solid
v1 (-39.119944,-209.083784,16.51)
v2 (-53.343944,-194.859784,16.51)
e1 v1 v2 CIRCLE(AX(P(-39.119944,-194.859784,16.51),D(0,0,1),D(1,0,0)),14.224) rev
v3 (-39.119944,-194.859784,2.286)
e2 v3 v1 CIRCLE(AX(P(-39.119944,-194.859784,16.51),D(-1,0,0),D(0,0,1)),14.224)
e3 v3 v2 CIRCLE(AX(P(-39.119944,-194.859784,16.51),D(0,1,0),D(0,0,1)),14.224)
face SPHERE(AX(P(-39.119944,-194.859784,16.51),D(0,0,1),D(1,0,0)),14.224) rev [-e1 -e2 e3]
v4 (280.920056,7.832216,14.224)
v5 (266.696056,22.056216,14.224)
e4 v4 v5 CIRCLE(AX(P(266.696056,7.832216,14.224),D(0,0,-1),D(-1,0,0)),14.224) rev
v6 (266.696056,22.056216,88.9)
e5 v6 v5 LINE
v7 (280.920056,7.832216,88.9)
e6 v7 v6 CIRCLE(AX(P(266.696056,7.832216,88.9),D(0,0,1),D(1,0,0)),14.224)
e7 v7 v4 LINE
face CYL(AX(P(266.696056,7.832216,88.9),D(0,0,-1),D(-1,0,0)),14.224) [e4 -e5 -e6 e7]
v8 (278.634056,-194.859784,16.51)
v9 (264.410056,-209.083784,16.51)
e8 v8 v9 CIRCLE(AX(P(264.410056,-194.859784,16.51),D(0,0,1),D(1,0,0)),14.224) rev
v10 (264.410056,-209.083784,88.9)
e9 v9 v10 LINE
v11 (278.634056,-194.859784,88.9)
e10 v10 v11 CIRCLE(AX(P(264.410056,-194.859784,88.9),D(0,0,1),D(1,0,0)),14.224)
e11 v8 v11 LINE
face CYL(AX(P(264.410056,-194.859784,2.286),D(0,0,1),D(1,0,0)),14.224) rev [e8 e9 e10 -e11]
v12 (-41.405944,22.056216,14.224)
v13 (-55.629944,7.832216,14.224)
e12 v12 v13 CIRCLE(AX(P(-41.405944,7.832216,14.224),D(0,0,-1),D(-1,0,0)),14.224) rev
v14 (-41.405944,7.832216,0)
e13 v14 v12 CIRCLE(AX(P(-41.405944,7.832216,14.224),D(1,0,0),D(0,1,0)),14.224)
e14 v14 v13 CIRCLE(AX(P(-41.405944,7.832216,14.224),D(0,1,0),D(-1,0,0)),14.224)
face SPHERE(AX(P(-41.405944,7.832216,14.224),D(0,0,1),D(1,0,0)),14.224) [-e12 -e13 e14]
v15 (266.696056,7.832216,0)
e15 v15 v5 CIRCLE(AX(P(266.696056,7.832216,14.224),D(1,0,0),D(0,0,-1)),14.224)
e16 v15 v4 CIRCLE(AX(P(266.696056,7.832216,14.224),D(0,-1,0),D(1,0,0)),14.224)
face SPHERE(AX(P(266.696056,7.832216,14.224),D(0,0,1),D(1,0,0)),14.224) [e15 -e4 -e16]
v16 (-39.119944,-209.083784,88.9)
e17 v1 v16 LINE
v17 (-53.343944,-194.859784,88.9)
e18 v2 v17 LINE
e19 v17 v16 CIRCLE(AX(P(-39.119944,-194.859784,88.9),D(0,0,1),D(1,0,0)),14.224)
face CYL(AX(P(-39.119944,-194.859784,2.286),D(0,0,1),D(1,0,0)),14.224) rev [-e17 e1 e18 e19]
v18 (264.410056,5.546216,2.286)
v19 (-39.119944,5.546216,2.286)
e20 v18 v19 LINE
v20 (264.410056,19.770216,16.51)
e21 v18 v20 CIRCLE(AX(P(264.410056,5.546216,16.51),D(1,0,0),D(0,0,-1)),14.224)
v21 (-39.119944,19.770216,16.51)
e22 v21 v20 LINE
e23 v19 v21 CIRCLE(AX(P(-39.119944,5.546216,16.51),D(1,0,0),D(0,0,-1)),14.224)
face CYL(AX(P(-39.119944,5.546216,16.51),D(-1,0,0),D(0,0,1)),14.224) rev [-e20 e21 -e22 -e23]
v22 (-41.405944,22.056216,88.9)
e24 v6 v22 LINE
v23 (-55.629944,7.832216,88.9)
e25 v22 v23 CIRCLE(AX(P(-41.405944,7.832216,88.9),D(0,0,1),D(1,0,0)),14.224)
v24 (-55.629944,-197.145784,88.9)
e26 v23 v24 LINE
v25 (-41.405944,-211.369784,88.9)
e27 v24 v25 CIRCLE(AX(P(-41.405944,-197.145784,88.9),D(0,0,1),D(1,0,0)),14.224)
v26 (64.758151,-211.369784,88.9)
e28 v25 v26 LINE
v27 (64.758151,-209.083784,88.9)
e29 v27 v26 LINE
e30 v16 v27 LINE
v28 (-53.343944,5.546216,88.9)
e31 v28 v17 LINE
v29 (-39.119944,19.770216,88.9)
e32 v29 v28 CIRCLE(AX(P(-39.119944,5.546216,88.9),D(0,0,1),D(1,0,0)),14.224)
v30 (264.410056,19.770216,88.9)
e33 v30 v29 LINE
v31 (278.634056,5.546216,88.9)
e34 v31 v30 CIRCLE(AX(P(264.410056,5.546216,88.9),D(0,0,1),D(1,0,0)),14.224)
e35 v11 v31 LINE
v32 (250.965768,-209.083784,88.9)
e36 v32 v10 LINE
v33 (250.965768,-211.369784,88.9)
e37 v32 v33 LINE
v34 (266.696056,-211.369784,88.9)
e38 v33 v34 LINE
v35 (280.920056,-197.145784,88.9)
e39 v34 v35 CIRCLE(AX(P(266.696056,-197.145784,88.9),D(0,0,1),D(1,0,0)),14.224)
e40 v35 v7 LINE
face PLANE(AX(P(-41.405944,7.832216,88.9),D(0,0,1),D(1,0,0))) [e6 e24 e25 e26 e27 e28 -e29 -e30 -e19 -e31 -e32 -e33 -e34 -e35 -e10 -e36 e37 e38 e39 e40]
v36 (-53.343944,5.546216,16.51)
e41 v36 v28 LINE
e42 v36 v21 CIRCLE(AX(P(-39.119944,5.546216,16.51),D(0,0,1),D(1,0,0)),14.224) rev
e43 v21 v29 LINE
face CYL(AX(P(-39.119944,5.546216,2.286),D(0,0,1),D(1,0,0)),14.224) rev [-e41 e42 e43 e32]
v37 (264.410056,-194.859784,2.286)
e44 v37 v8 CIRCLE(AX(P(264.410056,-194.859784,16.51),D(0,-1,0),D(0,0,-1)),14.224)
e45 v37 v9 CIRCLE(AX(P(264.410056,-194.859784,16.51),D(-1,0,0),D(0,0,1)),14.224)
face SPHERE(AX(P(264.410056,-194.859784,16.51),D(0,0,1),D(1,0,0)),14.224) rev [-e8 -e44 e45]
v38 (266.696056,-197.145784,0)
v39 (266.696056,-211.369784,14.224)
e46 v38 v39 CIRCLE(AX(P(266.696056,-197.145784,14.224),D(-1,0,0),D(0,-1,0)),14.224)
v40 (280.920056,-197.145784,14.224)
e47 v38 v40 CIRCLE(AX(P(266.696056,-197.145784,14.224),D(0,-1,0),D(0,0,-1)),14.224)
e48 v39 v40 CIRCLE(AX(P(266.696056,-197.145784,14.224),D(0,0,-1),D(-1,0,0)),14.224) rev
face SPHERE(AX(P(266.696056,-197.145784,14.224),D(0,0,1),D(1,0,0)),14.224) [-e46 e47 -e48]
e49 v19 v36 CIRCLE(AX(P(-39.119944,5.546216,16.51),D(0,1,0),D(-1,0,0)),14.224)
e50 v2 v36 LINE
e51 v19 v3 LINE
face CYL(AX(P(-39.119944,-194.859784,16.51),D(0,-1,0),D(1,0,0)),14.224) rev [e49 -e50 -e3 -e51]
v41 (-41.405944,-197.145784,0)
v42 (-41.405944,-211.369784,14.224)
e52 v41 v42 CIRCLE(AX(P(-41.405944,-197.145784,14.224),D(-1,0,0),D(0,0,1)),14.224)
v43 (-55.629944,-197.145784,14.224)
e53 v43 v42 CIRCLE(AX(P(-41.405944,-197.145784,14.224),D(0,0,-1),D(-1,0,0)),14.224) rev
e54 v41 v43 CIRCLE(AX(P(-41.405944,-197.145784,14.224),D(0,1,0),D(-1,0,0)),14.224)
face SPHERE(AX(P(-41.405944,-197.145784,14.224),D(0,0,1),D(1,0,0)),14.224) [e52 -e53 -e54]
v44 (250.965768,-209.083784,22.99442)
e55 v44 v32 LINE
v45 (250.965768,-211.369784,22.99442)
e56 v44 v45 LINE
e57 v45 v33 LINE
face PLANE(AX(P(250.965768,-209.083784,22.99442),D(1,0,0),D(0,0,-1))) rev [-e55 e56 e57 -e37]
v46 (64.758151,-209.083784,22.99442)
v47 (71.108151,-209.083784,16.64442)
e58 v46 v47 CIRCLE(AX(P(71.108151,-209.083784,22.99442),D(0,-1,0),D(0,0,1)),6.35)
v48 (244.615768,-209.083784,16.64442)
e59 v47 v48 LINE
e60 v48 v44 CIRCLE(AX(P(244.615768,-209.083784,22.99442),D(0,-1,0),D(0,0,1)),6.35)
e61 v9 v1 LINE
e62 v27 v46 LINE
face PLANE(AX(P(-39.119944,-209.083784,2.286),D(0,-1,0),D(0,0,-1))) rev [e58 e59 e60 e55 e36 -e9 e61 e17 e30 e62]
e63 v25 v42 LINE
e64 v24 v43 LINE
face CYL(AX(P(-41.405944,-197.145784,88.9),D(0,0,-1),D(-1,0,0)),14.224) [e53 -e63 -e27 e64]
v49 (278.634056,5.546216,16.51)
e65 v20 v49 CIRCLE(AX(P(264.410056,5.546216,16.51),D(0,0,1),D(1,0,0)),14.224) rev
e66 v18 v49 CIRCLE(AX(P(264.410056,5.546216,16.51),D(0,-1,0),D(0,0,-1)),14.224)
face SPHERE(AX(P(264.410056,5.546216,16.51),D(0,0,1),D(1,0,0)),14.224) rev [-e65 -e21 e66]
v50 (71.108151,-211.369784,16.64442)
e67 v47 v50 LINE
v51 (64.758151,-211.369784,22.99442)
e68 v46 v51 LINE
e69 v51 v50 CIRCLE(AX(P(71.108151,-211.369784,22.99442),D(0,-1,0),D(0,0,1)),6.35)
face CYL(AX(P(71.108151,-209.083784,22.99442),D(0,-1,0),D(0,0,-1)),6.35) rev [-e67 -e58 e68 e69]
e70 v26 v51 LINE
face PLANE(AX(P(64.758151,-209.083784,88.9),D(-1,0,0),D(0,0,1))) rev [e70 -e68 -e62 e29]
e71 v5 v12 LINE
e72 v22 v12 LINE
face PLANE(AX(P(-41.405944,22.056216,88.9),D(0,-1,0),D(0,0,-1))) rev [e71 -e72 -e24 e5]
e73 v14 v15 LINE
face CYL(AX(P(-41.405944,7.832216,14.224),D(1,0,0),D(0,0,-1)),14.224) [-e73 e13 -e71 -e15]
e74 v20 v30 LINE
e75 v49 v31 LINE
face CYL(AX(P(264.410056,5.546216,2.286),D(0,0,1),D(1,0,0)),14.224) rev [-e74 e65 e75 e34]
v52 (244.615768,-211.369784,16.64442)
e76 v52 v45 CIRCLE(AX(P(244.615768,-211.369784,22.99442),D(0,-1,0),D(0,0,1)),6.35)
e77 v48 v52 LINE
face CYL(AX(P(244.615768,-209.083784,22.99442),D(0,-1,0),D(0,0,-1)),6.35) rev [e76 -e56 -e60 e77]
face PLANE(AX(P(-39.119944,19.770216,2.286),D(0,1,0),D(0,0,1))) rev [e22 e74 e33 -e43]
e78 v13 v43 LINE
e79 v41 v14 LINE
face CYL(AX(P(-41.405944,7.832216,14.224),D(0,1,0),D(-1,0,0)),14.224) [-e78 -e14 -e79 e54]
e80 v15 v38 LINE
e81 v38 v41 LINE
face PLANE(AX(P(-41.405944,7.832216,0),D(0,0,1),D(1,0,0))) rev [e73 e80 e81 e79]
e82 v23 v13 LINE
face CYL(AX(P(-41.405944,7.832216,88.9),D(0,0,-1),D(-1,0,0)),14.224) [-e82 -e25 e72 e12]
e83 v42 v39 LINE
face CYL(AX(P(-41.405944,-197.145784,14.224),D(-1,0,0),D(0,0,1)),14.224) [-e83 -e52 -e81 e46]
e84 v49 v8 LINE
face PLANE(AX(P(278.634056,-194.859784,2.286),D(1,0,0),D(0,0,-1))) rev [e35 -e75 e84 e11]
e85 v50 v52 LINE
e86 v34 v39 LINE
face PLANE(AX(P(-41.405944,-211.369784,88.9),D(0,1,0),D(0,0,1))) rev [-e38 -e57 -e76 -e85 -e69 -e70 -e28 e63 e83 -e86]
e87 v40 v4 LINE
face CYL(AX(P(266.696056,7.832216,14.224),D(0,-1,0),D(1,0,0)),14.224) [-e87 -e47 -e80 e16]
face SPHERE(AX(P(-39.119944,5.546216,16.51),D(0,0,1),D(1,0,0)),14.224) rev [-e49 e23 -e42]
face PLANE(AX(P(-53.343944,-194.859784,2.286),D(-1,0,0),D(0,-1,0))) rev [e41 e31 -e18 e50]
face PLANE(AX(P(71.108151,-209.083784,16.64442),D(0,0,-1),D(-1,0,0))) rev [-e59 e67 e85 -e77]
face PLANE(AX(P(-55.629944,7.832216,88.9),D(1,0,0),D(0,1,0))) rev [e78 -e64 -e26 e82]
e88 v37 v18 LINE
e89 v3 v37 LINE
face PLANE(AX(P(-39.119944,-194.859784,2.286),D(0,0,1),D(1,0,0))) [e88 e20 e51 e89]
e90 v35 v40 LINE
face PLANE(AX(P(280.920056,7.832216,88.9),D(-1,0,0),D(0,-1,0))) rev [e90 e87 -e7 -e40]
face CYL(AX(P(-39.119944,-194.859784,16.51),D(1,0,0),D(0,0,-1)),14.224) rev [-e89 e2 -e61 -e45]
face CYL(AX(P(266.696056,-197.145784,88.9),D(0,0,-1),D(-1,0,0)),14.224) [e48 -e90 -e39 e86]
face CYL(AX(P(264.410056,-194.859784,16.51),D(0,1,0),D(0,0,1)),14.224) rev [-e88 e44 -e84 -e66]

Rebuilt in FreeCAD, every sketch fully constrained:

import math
import FreeCAD as App
import Part
import Sketcher
Q = App.Units.Quantity


def edges_at(feature, points):
    """Names of the edges that pass closest to the given points."""
    edges = feature.Shape.Edges
    near = lambda p: min(range(len(edges)), key=lambda i: edges[i].distToShape(Part.Vertex(*p))[0])
    return sorted({f"Edge{near(p) + 1}" for p in points})

doc = App.newDocument("Part")
body = doc.addObject("PartDesign::Body", "Body")

sketch1 = doc.addObject("Sketcher::SketchObject", "Sketch")
body.addObject(sketch1)
sketch1.AttachmentSupport = (doc.XY_Plane, [""])
sketch1.MapMode = "FlatFace"
sketch1.addGeometry(Part.LineSegment(App.Vector(267, 22, 0), App.Vector(-41, 22, 0)), False)
sketch1.addGeometry(Part.ArcOfCircle(Part.Circle(App.Vector(-41, 8, 0), App.Vector(0, 0, 1), 14), math.radians(90), math.radians(180)), False)
sketch1.addGeometry(Part.LineSegment(App.Vector(-56, 8, 0), App.Vector(-56, -197, 0)), False)
sketch1.addGeometry(Part.ArcOfCircle(Part.Circle(App.Vector(-41, -197, 0), App.Vector(0, 0, 1), 14), math.radians(180), math.radians(270)), False)
sketch1.addGeometry(Part.LineSegment(App.Vector(-41, -211, 0), App.Vector(267, -211, 0)), False)
sketch1.addGeometry(Part.ArcOfCircle(Part.Circle(App.Vector(267, -197, 0), App.Vector(0, 0, 1), 14), math.radians(-90), math.radians(0)), False)
sketch1.addGeometry(Part.LineSegment(App.Vector(281, -197, 0), App.Vector(281, 8, 0)), False)
sketch1.addGeometry(Part.ArcOfCircle(Part.Circle(App.Vector(267, 8, 0), App.Vector(0, 0, 1), 14), math.radians(0), math.radians(90)), False)
sketch1.addConstraint(Sketcher.Constraint("Tangent", 0, 2, 1, 1))
sketch1.addConstraint(Sketcher.Constraint("Tangent", 1, 2, 2, 1))
sketch1.addConstraint(Sketcher.Constraint("Tangent", 2, 2, 3, 1))
sketch1.addConstraint(Sketcher.Constraint("Tangent", 3, 2, 4, 1))
sketch1.addConstraint(Sketcher.Constraint("Tangent", 4, 2, 5, 1))
sketch1.addConstraint(Sketcher.Constraint("Tangent", 5, 2, 6, 1))
sketch1.addConstraint(Sketcher.Constraint("Tangent", 6, 2, 7, 1))
sketch1.addConstraint(Sketcher.Constraint("Tangent", 7, 2, 0, 1))
sketch1.addConstraint(Sketcher.Constraint("Horizontal", 0))
sketch1.addConstraint(Sketcher.Constraint("Vertical", 2))
sketch1.addConstraint(Sketcher.Constraint("Horizontal", 4))
sketch1.addConstraint(Sketcher.Constraint("Vertical", 6))
sketch1.addConstraint(Sketcher.Constraint("Equal", 1, 3))
sketch1.addConstraint(Sketcher.Constraint("Equal", 3, 5))
sketch1.addConstraint(Sketcher.Constraint("Equal", 5, 7))
sketch1.addConstraint(Sketcher.Constraint("Radius", 1, Q("0.56 in")))
sketch1.addConstraint(Sketcher.Constraint("DistanceX", 0, 2, 0, 1, Q("12.13 in")))
sketch1.addConstraint(Sketcher.Constraint("DistanceY", 2, 2, 2, 1, Q("8.07 in")))
sketch1.addConstraint(Sketcher.Constraint("DistanceX", 1, 3, -1, 1, Q("41.405944 mm")))
sketch1.addConstraint(Sketcher.Constraint("DistanceY", -1, 1, 1, 3, Q("7.832216 mm")))
pad1 = doc.addObject("PartDesign::Pad", "Pad")
body.addObject(pad1)
pad1.Profile = sketch1
pad1.Length = Q("3.5 in")

sketch2 = doc.addObject("Sketcher::SketchObject", "Sketch001")
body.addObject(sketch2)
sketch2.AttachmentSupport = (doc.XY_Plane, [""])
sketch2.MapMode = "FlatFace"
sketch2.AttachmentOffset = App.Placement(App.Vector(0, 0, 3.5 * 25.4), App.Rotation())
sketch2.addGeometry(Part.LineSegment(App.Vector(-39, -209, 0), App.Vector(264, -209, 0)), False)
sketch2.addGeometry(Part.ArcOfCircle(Part.Circle(App.Vector(264, -195, 0), App.Vector(0, 0, 1), 14), math.radians(-90), math.radians(0)), False)
sketch2.addGeometry(Part.LineSegment(App.Vector(279, -195, 0), App.Vector(279, 6, 0)), False)
sketch2.addGeometry(Part.ArcOfCircle(Part.Circle(App.Vector(264, 6, 0), App.Vector(0, 0, 1), 14), math.radians(0), math.radians(90)), False)
sketch2.addGeometry(Part.LineSegment(App.Vector(264, 20, 0), App.Vector(-39, 20, 0)), False)
sketch2.addGeometry(Part.ArcOfCircle(Part.Circle(App.Vector(-39, 6, 0), App.Vector(0, 0, 1), 14), math.radians(90), math.radians(180)), False)
sketch2.addGeometry(Part.LineSegment(App.Vector(-53, 6, 0), App.Vector(-53, -195, 0)), False)
sketch2.addGeometry(Part.ArcOfCircle(Part.Circle(App.Vector(-39, -195, 0), App.Vector(0, 0, 1), 14), math.radians(180), math.radians(270)), False)
sketch2.addConstraint(Sketcher.Constraint("Tangent", 0, 2, 1, 1))
sketch2.addConstraint(Sketcher.Constraint("Tangent", 1, 2, 2, 1))
sketch2.addConstraint(Sketcher.Constraint("Tangent", 2, 2, 3, 1))
sketch2.addConstraint(Sketcher.Constraint("Tangent", 3, 2, 4, 1))
sketch2.addConstraint(Sketcher.Constraint("Tangent", 4, 2, 5, 1))
sketch2.addConstraint(Sketcher.Constraint("Tangent", 5, 2, 6, 1))
sketch2.addConstraint(Sketcher.Constraint("Tangent", 6, 2, 7, 1))
sketch2.addConstraint(Sketcher.Constraint("Tangent", 7, 2, 0, 1))
sketch2.addConstraint(Sketcher.Constraint("Horizontal", 0))
sketch2.addConstraint(Sketcher.Constraint("Vertical", 2))
sketch2.addConstraint(Sketcher.Constraint("Horizontal", 4))
sketch2.addConstraint(Sketcher.Constraint("Vertical", 6))
sketch2.addConstraint(Sketcher.Constraint("Equal", 1, 3))
sketch2.addConstraint(Sketcher.Constraint("Equal", 3, 5))
sketch2.addConstraint(Sketcher.Constraint("Equal", 5, 7))
sketch2.addConstraint(Sketcher.Constraint("Radius", 1, Q("0.56 in")))
sketch2.addConstraint(Sketcher.Constraint("DistanceX", 0, 1, 0, 2, Q("11.95 in")))
sketch2.addConstraint(Sketcher.Constraint("DistanceY", 2, 1, 2, 2, Q("7.89 in")))
sketch2.addConstraint(Sketcher.Constraint("DistanceX", -1, 1, 1, 3, Q("264.410056 mm")))
sketch2.addConstraint(Sketcher.Constraint("DistanceY", 1, 3, -1, 1, Q("194.859784 mm")))
pocket1 = doc.addObject("PartDesign::Pocket", "Pocket")
body.addObject(pocket1)
pocket1.Profile = sketch2
pocket1.Length = Q("3.41 in")
doc.recompute()

fillet = doc.addObject("PartDesign::Fillet", "Fillet")
body.addObject(fillet)
fillet.Base = (pocket1, edges_at(pocket1, [
    (-49.178, -204.918, 2.286),
    (-53.344, -94.657, 2.286),
    (-49.178, 15.604, 2.286),
    (112.645, 19.77, 2.286),
    (274.468, 15.604, 2.286),
    (278.634, -94.657, 2.286),
    (274.468, -204.918, 2.286),
    (112.645, -209.084, 2.286),
]))
fillet.Radius = Q("0.56 in")
doc.recompute()

fillet2 = doc.addObject("PartDesign::Fillet", "Fillet001")
body.addObject(fillet2)
fillet2.Base = (fillet, edges_at(fillet, [
    (-55.63, -94.657, 0),
    (-51.464, 17.89, 0),
    (112.645, 22.056, 0),
    (276.754, 17.89, 0),
    (280.92, -94.657, 0),
    (276.754, -207.204, 0),
    (112.645, -211.37, 0),
    (-51.464, -207.204, 0),
]))
fillet2.Radius = Q("0.56 in")

sketch3 = doc.addObject("Sketcher::SketchObject", "Sketch002")
body.addObject(sketch3)
sketch3.AttachmentSupport = (doc.XZ_Plane, [""])
sketch3.MapMode = "FlatFace"
sketch3.AttachmentOffset = App.Placement(App.Vector(0, 0, 211.369784), App.Rotation())
sketch3.addGeometry(Part.LineSegment(App.Vector(65, 89, 0), App.Vector(65, 23, 0)), False)
sketch3.addGeometry(Part.ArcOfCircle(Part.Circle(App.Vector(71, 23, 0), App.Vector(0, 0, 1), 6), math.radians(180), math.radians(270)), False)
sketch3.addGeometry(Part.LineSegment(App.Vector(71, 17, 0), App.Vector(245, 17, 0)), False)
sketch3.addGeometry(Part.ArcOfCircle(Part.Circle(App.Vector(245, 23, 0), App.Vector(0, 0, 1), 6), math.radians(-90), math.radians(0)), False)
sketch3.addGeometry(Part.LineSegment(App.Vector(251, 23, 0), App.Vector(251, 89, 0)), False)
sketch3.addGeometry(Part.LineSegment(App.Vector(251, 89, 0), App.Vector(65, 89, 0)), False)
sketch3.addConstraint(Sketcher.Constraint("Tangent", 0, 2, 1, 1))
sketch3.addConstraint(Sketcher.Constraint("Tangent", 1, 2, 2, 1))
sketch3.addConstraint(Sketcher.Constraint("Tangent", 2, 2, 3, 1))
sketch3.addConstraint(Sketcher.Constraint("Tangent", 3, 2, 4, 1))
sketch3.addConstraint(Sketcher.Constraint("Coincident", 4, 2, 5, 1))
sketch3.addConstraint(Sketcher.Constraint("Coincident", 5, 2, 0, 1))
sketch3.addConstraint(Sketcher.Constraint("Vertical", 0))
sketch3.addConstraint(Sketcher.Constraint("Horizontal", 2))
sketch3.addConstraint(Sketcher.Constraint("Vertical", 4))
sketch3.addConstraint(Sketcher.Constraint("Horizontal", 5))
sketch3.addConstraint(Sketcher.Constraint("Equal", 1, 3))
sketch3.addConstraint(Sketcher.Constraint("Radius", 1, Q("0.25 in")))
sketch3.addConstraint(Sketcher.Constraint("DistanceY", -1, 1, 4, 2, Q("3.5 in")))
sketch3.addConstraint(Sketcher.Constraint("DistanceY", 0, 2, 0, 1, Q("65.90558 mm")))
sketch3.addConstraint(Sketcher.Constraint("DistanceX", 2, 1, 2, 2, Q("173.507616 mm")))
sketch3.addConstraint(Sketcher.Constraint("DistanceX", -1, 1, 1, 3, Q("71.108151 mm")))
pocket2 = doc.addObject("PartDesign::Pocket", "Pocket001")
body.addObject(pocket2)
pocket2.Profile = sketch3
pocket2.Length = Q("0.09 in")

doc.recompute()
